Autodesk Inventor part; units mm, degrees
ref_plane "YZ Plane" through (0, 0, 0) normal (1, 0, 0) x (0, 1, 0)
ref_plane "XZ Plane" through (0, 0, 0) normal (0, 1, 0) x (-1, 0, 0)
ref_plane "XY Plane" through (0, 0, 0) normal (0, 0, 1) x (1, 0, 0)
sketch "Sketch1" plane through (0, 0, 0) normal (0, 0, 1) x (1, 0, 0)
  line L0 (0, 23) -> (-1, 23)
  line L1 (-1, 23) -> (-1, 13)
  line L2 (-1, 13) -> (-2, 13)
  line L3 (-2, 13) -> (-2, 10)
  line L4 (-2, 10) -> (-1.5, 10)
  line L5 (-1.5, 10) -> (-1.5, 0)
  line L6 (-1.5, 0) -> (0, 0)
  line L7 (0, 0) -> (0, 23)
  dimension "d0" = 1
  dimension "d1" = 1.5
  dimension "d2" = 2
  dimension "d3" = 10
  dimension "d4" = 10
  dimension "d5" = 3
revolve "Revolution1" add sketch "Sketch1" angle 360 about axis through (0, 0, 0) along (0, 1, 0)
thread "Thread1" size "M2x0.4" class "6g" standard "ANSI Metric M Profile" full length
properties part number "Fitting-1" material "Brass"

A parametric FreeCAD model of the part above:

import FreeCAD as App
import Part
import Sketcher

V = App.Vector
Q = App.Units.Quantity

doc = App.newDocument("Part")
params = doc.addObject("Spreadsheet::Sheet", "Params")
for row, (alias, value) in enumerate([
    ("sketch1_width", "1 mm"),
    ("sketch1_height", "10 mm"),
    ("sketch1_height2", "3 mm"),
    ("sketch1_width2", "1.5 mm"),
    ("revolution_angle", "360 deg"),
], start=1):
    params.set(f"A{row}", alias)
    params.set(f"B{row}", "=" + value)
    params.setAlias(f"B{row}", alias)

body = doc.addObject("PartDesign::Body", "Body")

sketch1 = body.newObject("Sketcher::SketchObject", "Sketch")
sketch1.AttachmentSupport = (doc.getObject("XY_Plane"), [""])
sketch1.MapMode = "FlatFace"
sketch1.addGeometry(Part.LineSegment(V(0, 0, 0), V(0, 23, 0)), False)
sketch1.addGeometry(Part.LineSegment(V(0, 23, 0), V(-1, 23, 0)), False)
sketch1.addGeometry(Part.LineSegment(V(-1, 23, 0), V(-1, 13, 0)), False)
sketch1.addGeometry(Part.LineSegment(V(-1, 13, 0), V(-2, 13, 0)), False)
sketch1.addGeometry(Part.LineSegment(V(-2, 13, 0), V(-2, 10, 0)), False)
sketch1.addGeometry(Part.LineSegment(V(-2, 10, 0), V(-1.5, 10, 0)), False)
sketch1.addGeometry(Part.LineSegment(V(-1.5, 10, 0), V(-1.5, 0, 0)), False)
sketch1.addGeometry(Part.LineSegment(V(-1.5, 0, 0), V(0, 0, 0)), False)
sketch1.addConstraint(Sketcher.Constraint("Coincident", 0, 2, 1, 1))
sketch1.addConstraint(Sketcher.Constraint("Coincident", 1, 2, 2, 1))
sketch1.addConstraint(Sketcher.Constraint("Coincident", 2, 2, 3, 1))
sketch1.addConstraint(Sketcher.Constraint("Coincident", 3, 2, 4, 1))
sketch1.addConstraint(Sketcher.Constraint("Coincident", 4, 2, 5, 1))
sketch1.addConstraint(Sketcher.Constraint("Coincident", 5, 2, 6, 1))
sketch1.addConstraint(Sketcher.Constraint("Coincident", 6, 2, 7, 1))
sketch1.addConstraint(Sketcher.Constraint("Coincident", 7, 2, 0, 1))
sketch1.addConstraint(Sketcher.Constraint("Vertical", 0))
sketch1.addConstraint(Sketcher.Constraint("Horizontal", 1))
sketch1.addConstraint(Sketcher.Constraint("Vertical", 2))
sketch1.addConstraint(Sketcher.Constraint("Horizontal", 3))
sketch1.addConstraint(Sketcher.Constraint("Vertical", 4))
sketch1.addConstraint(Sketcher.Constraint("Horizontal", 5))
sketch1.addConstraint(Sketcher.Constraint("Vertical", 6))
sketch1.addConstraint(Sketcher.Constraint("Horizontal", 7))
sketch1.addConstraint(Sketcher.Constraint("Coincident", 7, 2, -1, 1))
sketch1.addConstraint(Sketcher.Constraint("Equal", 1, 3))
sketch1.addConstraint(Sketcher.Constraint("Equal", 2, 6))
sketch1.addConstraint(Sketcher.Constraint("DistanceX", 1, 2, 1, 1, Q("1 mm")))
sketch1.addConstraint(Sketcher.Constraint("DistanceY", 2, 2, 2, 1, Q("10 mm")))
sketch1.addConstraint(Sketcher.Constraint("DistanceY", 4, 2, 4, 1, Q("3 mm")))
sketch1.addConstraint(Sketcher.Constraint("DistanceX", 7, 1, 7, 2, Q("1.5 mm")))
sketch1.setExpression("Constraints[19]", "Params.sketch1_width")
sketch1.setExpression("Constraints[20]", "Params.sketch1_height")
sketch1.setExpression("Constraints[21]", "Params.sketch1_height2")
sketch1.setExpression("Constraints[22]", "Params.sketch1_width2")
revolution = body.newObject("PartDesign::Revolution", "Revolution")
revolution.Profile = sketch1
revolution.ReferenceAxis = (sketch1, ["V_Axis"])
revolution.setExpression("Angle", "Params.revolution_angle")

doc.recompute()
